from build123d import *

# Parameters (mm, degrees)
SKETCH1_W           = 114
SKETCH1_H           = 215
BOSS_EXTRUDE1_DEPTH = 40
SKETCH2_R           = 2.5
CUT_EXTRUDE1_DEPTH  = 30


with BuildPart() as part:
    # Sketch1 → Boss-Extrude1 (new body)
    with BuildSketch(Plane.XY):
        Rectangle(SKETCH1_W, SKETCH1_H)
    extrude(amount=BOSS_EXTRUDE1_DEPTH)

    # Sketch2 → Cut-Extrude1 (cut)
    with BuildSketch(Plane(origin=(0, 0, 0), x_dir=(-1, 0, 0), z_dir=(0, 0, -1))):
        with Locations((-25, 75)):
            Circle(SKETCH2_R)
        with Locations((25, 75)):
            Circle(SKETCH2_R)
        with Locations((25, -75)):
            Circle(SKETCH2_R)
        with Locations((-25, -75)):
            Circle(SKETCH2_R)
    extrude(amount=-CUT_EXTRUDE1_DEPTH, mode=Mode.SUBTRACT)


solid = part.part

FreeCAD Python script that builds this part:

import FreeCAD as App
import Part
import Sketcher


def add_polygon(sketch, points):
    """Adds a closed chain of lines whose ends are joined by coincident constraints."""
    first, n = sketch.GeometryCount, len(points)
    for a, b in zip(points, points[1:] + points[:1]):
        sketch.addGeometry(Part.LineSegment(App.Vector(*a, 0), App.Vector(*b, 0)), False)
    for i in range(n):
        sketch.addConstraint(Sketcher.Constraint("Coincident", first + i, 2, first + (i + 1) % n, 1))

doc = App.newDocument("Part")
body = doc.addObject("PartDesign::Body", "Body")

# Sketch on XY plane
sketch1 = body.newObject("Sketcher::SketchObject", "Sketch")
sketch1.AttachmentSupport = (doc.getObject("XY_Plane"), [""])
sketch1.MapMode = "FlatFace"
add_polygon(sketch1, [(-57, 108), (-57, -108), (57, -108), (57, 108)])  # lines 0-3
sketch1.addConstraint(Sketcher.Constraint("Vertical", 0))
sketch1.addConstraint(Sketcher.Constraint("Horizontal", 1))
sketch1.addConstraint(Sketcher.Constraint("Vertical", 2))
sketch1.addConstraint(Sketcher.Constraint("Horizontal", 3))
sketch1.addConstraint(Sketcher.Constraint("Symmetric", 0, 2, 2, 2, -1, 1))
sketch1.addConstraint(Sketcher.Constraint("DistanceX", 1, 1, 1, 2, 114.0))
sketch1.addConstraint(Sketcher.Constraint("DistanceY", 0, 2, 0, 1, 215.0))
pad1 = body.newObject("PartDesign::Pad", "Pad")
pad1.Profile = sketch1
pad1.Length = 40

# Sketch on XY plane
sketch2 = body.newObject("Sketcher::SketchObject", "Sketch001")
sketch2.AttachmentSupport = (doc.getObject("XY_Plane"), [""])
sketch2.MapMode = "FlatFace"
sketch2.addGeometry(Part.Circle(App.Vector(25, 75, 0), App.Vector(0, 0, 1), 2.5), False)
sketch2.addGeometry(Part.Circle(App.Vector(-25, 75, 0), App.Vector(0, 0, 1), 2.5), False)
sketch2.addGeometry(Part.Circle(App.Vector(-25, -75, 0), App.Vector(0, 0, 1), 2.5), False)
sketch2.addGeometry(Part.Circle(App.Vector(25, -75, 0), App.Vector(0, 0, 1), 2.5), False)
sketch2.addConstraint(Sketcher.Constraint("Equal", 0, 1))
sketch2.addConstraint(Sketcher.Constraint("Equal", 1, 2))
sketch2.addConstraint(Sketcher.Constraint("Equal", 2, 3))
sketch2.addConstraint(Sketcher.Constraint("Symmetric", 0, 3, 2, 3, -1, 1))
sketch2.addConstraint(Sketcher.Constraint("Symmetric", 1, 3, 3, 3, -1, 1))
sketch2.addConstraint(Sketcher.Constraint("Symmetric", 0, 3, 1, 3, -2))
sketch2.addConstraint(Sketcher.Constraint("Diameter", 0, 5.0))
sketch2.addConstraint(Sketcher.Constraint("DistanceX", -1, 1, 0, 3, 25.0))
sketch2.addConstraint(Sketcher.Constraint("DistanceY", -1, 1, 0, 3, 75.0))
pocket1 = body.newObject("PartDesign::Pocket", "Pocket")
pocket1.Profile = sketch2
pocket1.Length = 30
pocket1.Reversed = True

doc.recompute()
